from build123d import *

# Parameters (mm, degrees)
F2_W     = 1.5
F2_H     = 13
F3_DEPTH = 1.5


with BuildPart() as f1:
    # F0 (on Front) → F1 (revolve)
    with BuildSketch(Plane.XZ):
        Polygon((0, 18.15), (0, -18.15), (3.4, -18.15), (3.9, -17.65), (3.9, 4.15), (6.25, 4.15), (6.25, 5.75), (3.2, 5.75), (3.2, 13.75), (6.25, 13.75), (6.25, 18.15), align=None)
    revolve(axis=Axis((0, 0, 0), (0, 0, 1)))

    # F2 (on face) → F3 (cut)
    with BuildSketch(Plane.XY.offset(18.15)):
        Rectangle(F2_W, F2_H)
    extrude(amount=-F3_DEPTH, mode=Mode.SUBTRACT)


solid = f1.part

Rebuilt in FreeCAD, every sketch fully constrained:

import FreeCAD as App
import Part
import Sketcher
from FreeCAD import Vector
Q = App.Units.Quantity


def add_polygon(sketch, points):
    """Adds a closed chain of lines whose ends are joined by coincident constraints."""
    first, n = sketch.GeometryCount, len(points)
    for a, b in zip(points, points[1:] + points[:1]):
        sketch.addGeometry(Part.LineSegment(App.Vector(*a, 0), App.Vector(*b, 0)), False)
    for i in range(n):
        sketch.addConstraint(Sketcher.Constraint("Coincident", first + i, 2, first + (i + 1) % n, 1))

doc = App.newDocument("Part")
body = doc.addObject("PartDesign::Body", "Body")

sketch1 = body.newObject("Sketcher::SketchObject", "Sketch")
sketch1.AttachmentSupport = (doc.getObject("XZ_Plane"), [""])
sketch1.MapMode = "FlatFace"
add_polygon(sketch1, [(0, 18.15), (0, -18.15), (3.4, -18.15), (3.9, -17.65), (3.9, 4.15), (6.25, 4.15), (6.25, 5.75), (3.2, 5.75), (3.2, 13.75), (6.25, 13.75), (6.25, 18.15)])
sketch1.addConstraint(Sketcher.Constraint("Vertical", 0))
sketch1.addConstraint(Sketcher.Constraint("Horizontal", 1))
sketch1.addConstraint(Sketcher.Constraint("Vertical", 3))
sketch1.addConstraint(Sketcher.Constraint("Horizontal", 4))
sketch1.addConstraint(Sketcher.Constraint("Vertical", 5))
sketch1.addConstraint(Sketcher.Constraint("Horizontal", 6))
sketch1.addConstraint(Sketcher.Constraint("Vertical", 7))
sketch1.addConstraint(Sketcher.Constraint("Horizontal", 8))
sketch1.addConstraint(Sketcher.Constraint("Vertical", 9))
sketch1.addConstraint(Sketcher.Constraint("Horizontal", 10))
sketch1.addConstraint(Sketcher.Constraint("Symmetric", 0, 2, 10, 2, -1, 1))
sketch1.addConstraint(Sketcher.Constraint("Vertical", 5, 2, 8, 2))
sketch1.addConstraint(Sketcher.Constraint("DistanceY", 7, 1, 7, 2, Q("8 mm")))
sketch1.addConstraint(Sketcher.Constraint("Angle", 2, Q("45 deg")))
sketch1.addConstraint(Sketcher.Constraint("DistanceX", 1, 1, 1, 2, Q("3.4 mm")))
sketch1.addConstraint(Sketcher.Constraint("DistanceY", 0, 2, 0, 1, Q("36.3 mm")))
sketch1.addConstraint(Sketcher.Constraint("DistanceY", 3, 1, 3, 2, Q("21.8 mm")))
sketch1.addConstraint(Sketcher.Constraint("DistanceY", 5, 1, 5, 2, Q("1.6 mm")))
sketch1.addConstraint(Sketcher.Constraint("DistanceY", 9, 1, 9, 2, Q("4.4 mm")))
sketch1.addConstraint(Sketcher.Constraint("DistanceX", 4, 1, 4, 2, Q("2.35 mm")))
sketch1.addConstraint(Sketcher.Constraint("DistanceX", 6, 2, 6, 1, Q("3.05 mm")))
revolution = body.newObject("PartDesign::Revolution", "Revolution")
revolution.Profile = sketch1
revolution.ReferenceAxis = (sketch1, ["V_Axis"])
revolution.Angle = 360

sketch2 = body.newObject("Sketcher::SketchObject", "Sketch001")
sketch2.AttachmentSupport = (doc.getObject("XY_Plane"), [""])
sketch2.MapMode = "FlatFace"
sketch2.AttachmentOffset = App.Placement(Vector(0, 0, 18.15), App.Rotation())
add_polygon(sketch2, [(-0.75, 6.5), (-0.75, -6.5), (0.75, -6.5), (0.75, 6.5)])
sketch2.addConstraint(Sketcher.Constraint("Vertical", 0))
sketch2.addConstraint(Sketcher.Constraint("Horizontal", 1))
sketch2.addConstraint(Sketcher.Constraint("Vertical", 2))
sketch2.addConstraint(Sketcher.Constraint("Horizontal", 3))
sketch2.addConstraint(Sketcher.Constraint("Symmetric", 0, 2, 2, 2, -1, 1))
sketch2.addConstraint(Sketcher.Constraint("DistanceY", 0, 2, 0, 1, Q("13 mm")))
sketch2.addConstraint(Sketcher.Constraint("DistanceX", 1, 1, 1, 2, Q("1.5 mm")))
pocket1 = body.newObject("PartDesign::Pocket", "Pocket")
pocket1.Profile = sketch2
pocket1.Length = 1.5

doc.recompute()
